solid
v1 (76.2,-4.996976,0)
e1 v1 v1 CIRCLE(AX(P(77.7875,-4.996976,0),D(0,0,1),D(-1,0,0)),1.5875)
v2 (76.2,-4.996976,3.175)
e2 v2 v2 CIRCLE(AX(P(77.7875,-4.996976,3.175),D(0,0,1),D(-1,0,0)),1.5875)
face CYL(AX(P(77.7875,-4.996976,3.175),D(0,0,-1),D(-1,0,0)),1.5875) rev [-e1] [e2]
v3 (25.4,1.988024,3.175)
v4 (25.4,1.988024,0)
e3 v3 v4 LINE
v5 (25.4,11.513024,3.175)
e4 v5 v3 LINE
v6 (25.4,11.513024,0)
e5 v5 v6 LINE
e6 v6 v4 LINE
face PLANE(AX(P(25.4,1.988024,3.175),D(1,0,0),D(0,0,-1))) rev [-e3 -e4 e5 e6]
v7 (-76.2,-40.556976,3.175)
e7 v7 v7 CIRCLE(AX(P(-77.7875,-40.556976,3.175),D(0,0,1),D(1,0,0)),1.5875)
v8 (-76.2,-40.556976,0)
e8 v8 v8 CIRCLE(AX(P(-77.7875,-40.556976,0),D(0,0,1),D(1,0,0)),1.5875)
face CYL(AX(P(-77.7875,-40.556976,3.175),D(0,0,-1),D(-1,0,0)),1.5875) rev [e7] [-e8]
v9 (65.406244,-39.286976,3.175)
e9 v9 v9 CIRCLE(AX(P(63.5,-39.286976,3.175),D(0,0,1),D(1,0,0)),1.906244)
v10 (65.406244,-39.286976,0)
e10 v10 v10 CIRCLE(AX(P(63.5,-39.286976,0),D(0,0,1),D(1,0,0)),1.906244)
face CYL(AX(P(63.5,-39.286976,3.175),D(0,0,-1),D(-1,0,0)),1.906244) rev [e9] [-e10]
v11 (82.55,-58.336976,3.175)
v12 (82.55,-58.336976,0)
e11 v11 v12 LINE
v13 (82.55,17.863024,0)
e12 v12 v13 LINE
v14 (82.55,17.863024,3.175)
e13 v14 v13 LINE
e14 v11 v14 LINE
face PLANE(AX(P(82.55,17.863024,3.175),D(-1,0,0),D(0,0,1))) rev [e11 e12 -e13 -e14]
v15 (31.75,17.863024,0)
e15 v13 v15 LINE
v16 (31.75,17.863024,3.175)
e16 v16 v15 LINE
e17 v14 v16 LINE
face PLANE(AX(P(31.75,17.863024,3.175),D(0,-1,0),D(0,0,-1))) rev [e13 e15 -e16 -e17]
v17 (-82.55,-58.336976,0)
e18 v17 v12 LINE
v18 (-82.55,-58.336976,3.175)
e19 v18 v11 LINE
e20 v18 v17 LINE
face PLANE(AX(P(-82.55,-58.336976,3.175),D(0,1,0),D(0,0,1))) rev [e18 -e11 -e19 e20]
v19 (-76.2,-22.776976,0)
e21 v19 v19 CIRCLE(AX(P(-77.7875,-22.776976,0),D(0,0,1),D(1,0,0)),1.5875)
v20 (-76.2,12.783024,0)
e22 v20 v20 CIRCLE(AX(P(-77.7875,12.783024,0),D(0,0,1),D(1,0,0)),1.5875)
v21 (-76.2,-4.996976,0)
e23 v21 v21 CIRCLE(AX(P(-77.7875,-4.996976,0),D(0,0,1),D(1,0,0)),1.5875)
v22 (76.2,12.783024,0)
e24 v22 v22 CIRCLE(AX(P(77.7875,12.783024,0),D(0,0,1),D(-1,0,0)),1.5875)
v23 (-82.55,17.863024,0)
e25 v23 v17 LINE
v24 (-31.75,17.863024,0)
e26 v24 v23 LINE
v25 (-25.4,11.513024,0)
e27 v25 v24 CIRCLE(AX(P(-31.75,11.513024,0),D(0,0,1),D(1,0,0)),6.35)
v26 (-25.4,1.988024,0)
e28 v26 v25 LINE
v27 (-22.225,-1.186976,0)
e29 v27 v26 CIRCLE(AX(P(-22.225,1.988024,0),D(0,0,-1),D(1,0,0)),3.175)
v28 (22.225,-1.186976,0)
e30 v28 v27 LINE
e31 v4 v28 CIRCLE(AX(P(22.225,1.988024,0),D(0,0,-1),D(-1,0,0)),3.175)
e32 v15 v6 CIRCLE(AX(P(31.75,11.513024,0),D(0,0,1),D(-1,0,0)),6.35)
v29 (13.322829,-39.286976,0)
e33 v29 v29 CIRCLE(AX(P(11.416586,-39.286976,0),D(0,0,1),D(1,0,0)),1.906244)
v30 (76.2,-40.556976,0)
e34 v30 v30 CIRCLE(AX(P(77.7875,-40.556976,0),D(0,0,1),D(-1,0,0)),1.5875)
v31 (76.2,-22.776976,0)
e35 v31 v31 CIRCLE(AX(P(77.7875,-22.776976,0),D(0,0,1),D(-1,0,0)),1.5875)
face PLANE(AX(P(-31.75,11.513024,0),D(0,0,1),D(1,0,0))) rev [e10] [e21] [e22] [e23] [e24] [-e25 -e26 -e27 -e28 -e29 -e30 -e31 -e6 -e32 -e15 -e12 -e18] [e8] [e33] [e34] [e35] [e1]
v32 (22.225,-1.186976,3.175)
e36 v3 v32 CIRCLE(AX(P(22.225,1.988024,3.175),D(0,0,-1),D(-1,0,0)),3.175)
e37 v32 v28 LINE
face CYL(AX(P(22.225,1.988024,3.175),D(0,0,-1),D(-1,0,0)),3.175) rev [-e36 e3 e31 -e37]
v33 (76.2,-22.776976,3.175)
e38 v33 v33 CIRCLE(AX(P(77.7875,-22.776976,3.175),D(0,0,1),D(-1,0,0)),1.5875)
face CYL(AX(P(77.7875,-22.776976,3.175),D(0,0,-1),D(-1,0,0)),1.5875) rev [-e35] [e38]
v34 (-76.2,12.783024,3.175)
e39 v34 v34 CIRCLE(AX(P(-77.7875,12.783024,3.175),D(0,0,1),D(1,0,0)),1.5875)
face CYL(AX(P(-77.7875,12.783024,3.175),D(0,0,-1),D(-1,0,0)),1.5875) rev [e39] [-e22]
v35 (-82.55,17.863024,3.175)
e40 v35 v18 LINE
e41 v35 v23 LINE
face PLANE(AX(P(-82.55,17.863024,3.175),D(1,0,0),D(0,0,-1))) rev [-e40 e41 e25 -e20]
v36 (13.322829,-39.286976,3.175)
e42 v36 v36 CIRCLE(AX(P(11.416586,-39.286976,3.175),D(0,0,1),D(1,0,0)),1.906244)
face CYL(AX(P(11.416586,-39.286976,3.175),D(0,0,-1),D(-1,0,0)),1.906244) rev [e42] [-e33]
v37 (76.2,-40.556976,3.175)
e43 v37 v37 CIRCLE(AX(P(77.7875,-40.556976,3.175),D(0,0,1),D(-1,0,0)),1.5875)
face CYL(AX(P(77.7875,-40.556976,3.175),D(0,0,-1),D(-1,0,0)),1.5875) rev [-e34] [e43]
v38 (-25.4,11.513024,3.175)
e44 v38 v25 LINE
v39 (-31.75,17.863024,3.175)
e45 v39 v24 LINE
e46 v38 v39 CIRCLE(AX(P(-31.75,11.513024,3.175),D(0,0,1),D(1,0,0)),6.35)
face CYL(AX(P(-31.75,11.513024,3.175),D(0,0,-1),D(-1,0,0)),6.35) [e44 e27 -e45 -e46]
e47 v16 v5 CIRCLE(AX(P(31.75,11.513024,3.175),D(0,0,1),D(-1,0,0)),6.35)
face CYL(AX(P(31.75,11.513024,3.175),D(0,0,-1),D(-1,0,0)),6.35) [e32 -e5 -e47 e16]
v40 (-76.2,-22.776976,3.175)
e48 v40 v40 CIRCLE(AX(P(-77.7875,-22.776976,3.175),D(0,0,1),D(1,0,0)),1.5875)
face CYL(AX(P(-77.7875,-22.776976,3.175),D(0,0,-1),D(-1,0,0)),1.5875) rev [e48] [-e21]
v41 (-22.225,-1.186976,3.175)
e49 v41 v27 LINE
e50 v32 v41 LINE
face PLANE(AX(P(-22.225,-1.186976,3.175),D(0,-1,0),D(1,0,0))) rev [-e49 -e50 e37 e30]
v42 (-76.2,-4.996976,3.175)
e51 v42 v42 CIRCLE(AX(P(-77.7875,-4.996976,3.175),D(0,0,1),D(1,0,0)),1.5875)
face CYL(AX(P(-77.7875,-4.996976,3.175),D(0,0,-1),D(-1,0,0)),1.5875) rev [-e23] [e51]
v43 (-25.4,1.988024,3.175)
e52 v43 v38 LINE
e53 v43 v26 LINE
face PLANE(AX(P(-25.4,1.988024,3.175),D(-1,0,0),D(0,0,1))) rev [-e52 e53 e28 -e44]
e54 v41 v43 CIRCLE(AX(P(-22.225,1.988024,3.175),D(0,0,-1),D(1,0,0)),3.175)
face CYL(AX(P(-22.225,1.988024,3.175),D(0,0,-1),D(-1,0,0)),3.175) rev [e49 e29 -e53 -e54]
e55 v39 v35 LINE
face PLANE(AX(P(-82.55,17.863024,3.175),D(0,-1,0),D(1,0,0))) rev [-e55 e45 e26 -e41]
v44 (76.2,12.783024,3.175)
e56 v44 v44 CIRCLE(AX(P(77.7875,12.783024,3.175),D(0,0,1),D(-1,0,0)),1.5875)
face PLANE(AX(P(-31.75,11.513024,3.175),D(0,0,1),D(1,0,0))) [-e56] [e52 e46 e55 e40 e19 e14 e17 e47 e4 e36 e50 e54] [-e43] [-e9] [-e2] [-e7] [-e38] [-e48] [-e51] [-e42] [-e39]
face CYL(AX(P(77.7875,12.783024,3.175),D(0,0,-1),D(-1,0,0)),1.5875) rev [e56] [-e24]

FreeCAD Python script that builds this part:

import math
import FreeCAD as App
import Part
import Sketcher
from FreeCAD import Vector
Q = App.Units.Quantity

doc = App.newDocument("Part")
body = doc.addObject("PartDesign::Body", "Body")

# Sketch on XY plane
sketch1 = body.newObject("Sketcher::SketchObject", "Sketch")
sketch1.AttachmentSupport = (doc.getObject("XY_Plane"), [""])
sketch1.MapMode = "FlatFace"
sketch1.addGeometry(Part.LineSegment(Vector(-82.5, 17.9, 0), Vector(-82.5, -58.3, 0)), False)
sketch1.addGeometry(Part.LineSegment(Vector(-82.5, -58.3, 0), Vector(82.5, -58.3, 0)), False)
sketch1.addGeometry(Part.LineSegment(Vector(82.5, -58.3, 0), Vector(82.5, 17.9, 0)), False)
sketch1.addGeometry(Part.LineSegment(Vector(82.5, 17.9, 0), Vector(31.8, 17.9, 0)), False)
sketch1.addGeometry(Part.ArcOfCircle(Part.Circle(Vector(31.8, 11.5, 0), Vector(0, 0, 1), 6.3), math.radians(90), math.radians(180)), False)
sketch1.addGeometry(Part.LineSegment(Vector(25.4, 11.5, 0), Vector(25.4, 2, 0)), False)
sketch1.addGeometry(Part.ArcOfCircle(Part.Circle(Vector(22.2, 2, 0), Vector(0, 0, 1), 3.2), math.radians(-90), math.radians(0)), False)
sketch1.addGeometry(Part.LineSegment(Vector(22.2, -1.2, 0), Vector(-22.2, -1.2, 0)), False)
sketch1.addGeometry(Part.ArcOfCircle(Part.Circle(Vector(-22.2, 2, 0), Vector(0, 0, 1), 3.2), math.radians(180), math.radians(270)), False)
sketch1.addGeometry(Part.LineSegment(Vector(-25.4, 2, 0), Vector(-25.4, 11.5, 0)), False)
sketch1.addGeometry(Part.ArcOfCircle(Part.Circle(Vector(-31.8, 11.5, 0), Vector(0, 0, 1), 6.3), math.radians(0), math.radians(90)), False)
sketch1.addGeometry(Part.LineSegment(Vector(-31.8, 17.9, 0), Vector(-82.5, 17.9, 0)), False)
sketch1.addGeometry(Part.Circle(Vector(-77.8, -40.6, 0), Vector(0, 0, 1), 1.6), False)
sketch1.addGeometry(Part.Circle(Vector(-77.8, -22.8, 0), Vector(0, 0, 1), 1.6), False)
sketch1.addGeometry(Part.Circle(Vector(11.4, -39.3, 0), Vector(0, 0, 1), 1.9), False)
sketch1.addGeometry(Part.Circle(Vector(63.5, -39.3, 0), Vector(0, 0, 1), 1.9), False)
sketch1.addGeometry(Part.Circle(Vector(77.8, -40.6, 0), Vector(0, 0, 1), 1.6), False)
sketch1.addGeometry(Part.Circle(Vector(77.8, -22.8, 0), Vector(0, 0, 1), 1.6), False)
sketch1.addGeometry(Part.Circle(Vector(-77.8, -5, 0), Vector(0, 0, 1), 1.6), False)
sketch1.addGeometry(Part.Circle(Vector(-77.8, 12.8, 0), Vector(0, 0, 1), 1.6), False)
sketch1.addGeometry(Part.Circle(Vector(77.8, -5, 0), Vector(0, 0, 1), 1.6), False)
sketch1.addGeometry(Part.Circle(Vector(77.8, 12.8, 0), Vector(0, 0, 1), 1.6), False)
sketch1.addConstraint(Sketcher.Constraint("Coincident", 0, 2, 1, 1))
sketch1.addConstraint(Sketcher.Constraint("Coincident", 1, 2, 2, 1))
sketch1.addConstraint(Sketcher.Constraint("Coincident", 2, 2, 3, 1))
sketch1.addConstraint(Sketcher.Constraint("Tangent", 3, 2, 4, 1))
sketch1.addConstraint(Sketcher.Constraint("Tangent", 4, 2, 5, 1))
sketch1.addConstraint(Sketcher.Constraint("Tangent", 5, 2, 6, 2))
sketch1.addConstraint(Sketcher.Constraint("Tangent", 6, 1, 7, 1))
sketch1.addConstraint(Sketcher.Constraint("Tangent", 7, 2, 8, 2))
sketch1.addConstraint(Sketcher.Constraint("Tangent", 8, 1, 9, 1))
sketch1.addConstraint(Sketcher.Constraint("Tangent", 9, 2, 10, 1))
sketch1.addConstraint(Sketcher.Constraint("Tangent", 10, 2, 11, 1))
sketch1.addConstraint(Sketcher.Constraint("Coincident", 11, 2, 0, 1))
sketch1.addConstraint(Sketcher.Constraint("Vertical", 0))
sketch1.addConstraint(Sketcher.Constraint("Horizontal", 1))
sketch1.addConstraint(Sketcher.Constraint("Vertical", 2))
sketch1.addConstraint(Sketcher.Constraint("Horizontal", 3))
sketch1.addConstraint(Sketcher.Constraint("Vertical", 5))
sketch1.addConstraint(Sketcher.Constraint("Horizontal", 7))
sketch1.addConstraint(Sketcher.Constraint("Vertical", 9))
sketch1.addConstraint(Sketcher.Constraint("Horizontal", 11))
sketch1.addConstraint(Sketcher.Constraint("Equal", 6, 8))
sketch1.addConstraint(Sketcher.Constraint("Equal", 4, 10))
sketch1.addConstraint(Sketcher.Constraint("Equal", 12, 13))
sketch1.addConstraint(Sketcher.Constraint("Equal", 14, 15))
sketch1.addConstraint(Sketcher.Constraint("Equal", 13, 16))
sketch1.addConstraint(Sketcher.Constraint("Equal", 16, 17))
sketch1.addConstraint(Sketcher.Constraint("Equal", 17, 18))
sketch1.addConstraint(Sketcher.Constraint("Equal", 18, 19))
sketch1.addConstraint(Sketcher.Constraint("Equal", 19, 20))
sketch1.addConstraint(Sketcher.Constraint("Equal", 20, 21))
sketch1.addConstraint(Sketcher.Constraint("Symmetric", 4, 3, 10, 3, -2))
sketch1.addConstraint(Sketcher.Constraint("Symmetric", 12, 3, 16, 3, -2))
sketch1.addConstraint(Sketcher.Constraint("Symmetric", 13, 3, 17, 3, -2))
sketch1.addConstraint(Sketcher.Constraint("Symmetric", 18, 3, 20, 3, -2))
sketch1.addConstraint(Sketcher.Constraint("Symmetric", 19, 3, 21, 3, -2))
sketch1.addConstraint(Sketcher.Constraint("Horizontal", 14, 3, 15, 3))
sketch1.addConstraint(Sketcher.Constraint("Vertical", 12, 3, 13, 3))
sketch1.addConstraint(Sketcher.Constraint("Vertical", 13, 3, 18, 3))
sketch1.addConstraint(Sketcher.Constraint("Vertical", 18, 3, 19, 3))
sketch1.addConstraint(Sketcher.Constraint("Equal", 3, 11))
sketch1.addConstraint(Sketcher.Constraint("DistanceX", 3, 2, 3, 1, Q("2 in")))
sketch1.addConstraint(Sketcher.Constraint("DistanceY", 0, 2, 0, 1, Q("3 in")))
sketch1.addConstraint(Sketcher.Constraint("Radius", 4, Q("0.25 in")))
sketch1.addConstraint(Sketcher.Constraint("Diameter", 12, Q("0.125 in")))
sketch1.addConstraint(Sketcher.Constraint("DistanceX", 1, 1, 1, 2, Q("6.5 in")))
sketch1.addConstraint(Sketcher.Constraint("Radius", 6, Q("0.125 in")))
sketch1.addConstraint(Sketcher.Constraint("DistanceY", 14, 3, 4, 3, Q("2 in")))
sketch1.addConstraint(Sketcher.Constraint("DistanceX", -1, 1, 15, 3, Q("2.5 in")))
sketch1.addConstraint(Sketcher.Constraint("DistanceY", 12, 3, 13, 3, Q("0.7 in")))
sketch1.addConstraint(Sketcher.Constraint("DistanceY", 13, 3, 18, 3, Q("0.7 in")))
sketch1.addConstraint(Sketcher.Constraint("DistanceY", 18, 3, 19, 3, Q("0.7 in")))
sketch1.addConstraint(Sketcher.Constraint("DistanceY", 0, 2, 12, 3, Q("0.7 in")))
sketch1.addConstraint(Sketcher.Constraint("DistanceY", 6, 1, 4, 2, Q("0.5 in")))
sketch1.addConstraint(Sketcher.Constraint("DistanceX", 12, 3, -1, 1, Q("3.0625 in")))
sketch1.addConstraint(Sketcher.Constraint("Diameter", 14, 3.812487))
sketch1.addConstraint(Sketcher.Constraint("DistanceY", -1, 1, 4, 3, 11.513024))
sketch1.addConstraint(Sketcher.Constraint("DistanceX", -1, 1, 14, 3, 11.416586))
pad1 = body.newObject("PartDesign::Pad", "Pad")
pad1.Profile = sketch1
pad1.Length = Q("0.125 in")

doc.recompute()
